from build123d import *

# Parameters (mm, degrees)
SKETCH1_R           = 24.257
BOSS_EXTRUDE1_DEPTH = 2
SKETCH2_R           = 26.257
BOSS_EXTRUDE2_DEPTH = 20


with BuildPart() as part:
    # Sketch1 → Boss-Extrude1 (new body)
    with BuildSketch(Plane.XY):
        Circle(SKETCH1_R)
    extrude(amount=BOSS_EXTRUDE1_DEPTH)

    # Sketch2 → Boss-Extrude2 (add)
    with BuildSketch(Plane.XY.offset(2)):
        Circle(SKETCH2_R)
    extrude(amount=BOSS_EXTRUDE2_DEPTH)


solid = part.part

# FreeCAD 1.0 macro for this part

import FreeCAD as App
import Part
import Sketcher

doc = App.newDocument("Part")
body = doc.addObject("PartDesign::Body", "Body")

# Sketch on XY plane
sketch1 = doc.addObject("Sketcher::SketchObject", "Sketch")
body.addObject(sketch1)
sketch1.AttachmentSupport = (doc.XY_Plane, [""])
sketch1.MapMode = "FlatFace"
sketch1.addGeometry(Part.Circle(App.Vector(0, 0, 0), App.Vector(0, 0, 1), 24), False)
sketch1.addConstraint(Sketcher.Constraint("Coincident", 0, 3, -1, 1))
sketch1.addConstraint(Sketcher.Constraint("Diameter", 0, 48.514))
pad1 = doc.addObject("PartDesign::Pad", "Pad")
body.addObject(pad1)
pad1.Profile = sketch1
pad1.Length = 2

# Sketch on XY plane
sketch2 = doc.addObject("Sketcher::SketchObject", "Sketch001")
body.addObject(sketch2)
sketch2.AttachmentSupport = (doc.XY_Plane, [""])
sketch2.MapMode = "FlatFace"
sketch2.AttachmentOffset = App.Placement(App.Vector(0, 0, 2), App.Rotation())
sketch2.addGeometry(Part.Circle(App.Vector(0, 0, 0), App.Vector(0, 0, 1), 26), False)
sketch2.addConstraint(Sketcher.Constraint("Coincident", 0, 3, -1, 1))
sketch2.addConstraint(Sketcher.Constraint("Diameter", 0, 52.514))
pad2 = doc.addObject("PartDesign::Pad", "Pad001")
body.addObject(pad2)
pad2.Profile = sketch2
pad2.Length = 20

doc.recompute()
